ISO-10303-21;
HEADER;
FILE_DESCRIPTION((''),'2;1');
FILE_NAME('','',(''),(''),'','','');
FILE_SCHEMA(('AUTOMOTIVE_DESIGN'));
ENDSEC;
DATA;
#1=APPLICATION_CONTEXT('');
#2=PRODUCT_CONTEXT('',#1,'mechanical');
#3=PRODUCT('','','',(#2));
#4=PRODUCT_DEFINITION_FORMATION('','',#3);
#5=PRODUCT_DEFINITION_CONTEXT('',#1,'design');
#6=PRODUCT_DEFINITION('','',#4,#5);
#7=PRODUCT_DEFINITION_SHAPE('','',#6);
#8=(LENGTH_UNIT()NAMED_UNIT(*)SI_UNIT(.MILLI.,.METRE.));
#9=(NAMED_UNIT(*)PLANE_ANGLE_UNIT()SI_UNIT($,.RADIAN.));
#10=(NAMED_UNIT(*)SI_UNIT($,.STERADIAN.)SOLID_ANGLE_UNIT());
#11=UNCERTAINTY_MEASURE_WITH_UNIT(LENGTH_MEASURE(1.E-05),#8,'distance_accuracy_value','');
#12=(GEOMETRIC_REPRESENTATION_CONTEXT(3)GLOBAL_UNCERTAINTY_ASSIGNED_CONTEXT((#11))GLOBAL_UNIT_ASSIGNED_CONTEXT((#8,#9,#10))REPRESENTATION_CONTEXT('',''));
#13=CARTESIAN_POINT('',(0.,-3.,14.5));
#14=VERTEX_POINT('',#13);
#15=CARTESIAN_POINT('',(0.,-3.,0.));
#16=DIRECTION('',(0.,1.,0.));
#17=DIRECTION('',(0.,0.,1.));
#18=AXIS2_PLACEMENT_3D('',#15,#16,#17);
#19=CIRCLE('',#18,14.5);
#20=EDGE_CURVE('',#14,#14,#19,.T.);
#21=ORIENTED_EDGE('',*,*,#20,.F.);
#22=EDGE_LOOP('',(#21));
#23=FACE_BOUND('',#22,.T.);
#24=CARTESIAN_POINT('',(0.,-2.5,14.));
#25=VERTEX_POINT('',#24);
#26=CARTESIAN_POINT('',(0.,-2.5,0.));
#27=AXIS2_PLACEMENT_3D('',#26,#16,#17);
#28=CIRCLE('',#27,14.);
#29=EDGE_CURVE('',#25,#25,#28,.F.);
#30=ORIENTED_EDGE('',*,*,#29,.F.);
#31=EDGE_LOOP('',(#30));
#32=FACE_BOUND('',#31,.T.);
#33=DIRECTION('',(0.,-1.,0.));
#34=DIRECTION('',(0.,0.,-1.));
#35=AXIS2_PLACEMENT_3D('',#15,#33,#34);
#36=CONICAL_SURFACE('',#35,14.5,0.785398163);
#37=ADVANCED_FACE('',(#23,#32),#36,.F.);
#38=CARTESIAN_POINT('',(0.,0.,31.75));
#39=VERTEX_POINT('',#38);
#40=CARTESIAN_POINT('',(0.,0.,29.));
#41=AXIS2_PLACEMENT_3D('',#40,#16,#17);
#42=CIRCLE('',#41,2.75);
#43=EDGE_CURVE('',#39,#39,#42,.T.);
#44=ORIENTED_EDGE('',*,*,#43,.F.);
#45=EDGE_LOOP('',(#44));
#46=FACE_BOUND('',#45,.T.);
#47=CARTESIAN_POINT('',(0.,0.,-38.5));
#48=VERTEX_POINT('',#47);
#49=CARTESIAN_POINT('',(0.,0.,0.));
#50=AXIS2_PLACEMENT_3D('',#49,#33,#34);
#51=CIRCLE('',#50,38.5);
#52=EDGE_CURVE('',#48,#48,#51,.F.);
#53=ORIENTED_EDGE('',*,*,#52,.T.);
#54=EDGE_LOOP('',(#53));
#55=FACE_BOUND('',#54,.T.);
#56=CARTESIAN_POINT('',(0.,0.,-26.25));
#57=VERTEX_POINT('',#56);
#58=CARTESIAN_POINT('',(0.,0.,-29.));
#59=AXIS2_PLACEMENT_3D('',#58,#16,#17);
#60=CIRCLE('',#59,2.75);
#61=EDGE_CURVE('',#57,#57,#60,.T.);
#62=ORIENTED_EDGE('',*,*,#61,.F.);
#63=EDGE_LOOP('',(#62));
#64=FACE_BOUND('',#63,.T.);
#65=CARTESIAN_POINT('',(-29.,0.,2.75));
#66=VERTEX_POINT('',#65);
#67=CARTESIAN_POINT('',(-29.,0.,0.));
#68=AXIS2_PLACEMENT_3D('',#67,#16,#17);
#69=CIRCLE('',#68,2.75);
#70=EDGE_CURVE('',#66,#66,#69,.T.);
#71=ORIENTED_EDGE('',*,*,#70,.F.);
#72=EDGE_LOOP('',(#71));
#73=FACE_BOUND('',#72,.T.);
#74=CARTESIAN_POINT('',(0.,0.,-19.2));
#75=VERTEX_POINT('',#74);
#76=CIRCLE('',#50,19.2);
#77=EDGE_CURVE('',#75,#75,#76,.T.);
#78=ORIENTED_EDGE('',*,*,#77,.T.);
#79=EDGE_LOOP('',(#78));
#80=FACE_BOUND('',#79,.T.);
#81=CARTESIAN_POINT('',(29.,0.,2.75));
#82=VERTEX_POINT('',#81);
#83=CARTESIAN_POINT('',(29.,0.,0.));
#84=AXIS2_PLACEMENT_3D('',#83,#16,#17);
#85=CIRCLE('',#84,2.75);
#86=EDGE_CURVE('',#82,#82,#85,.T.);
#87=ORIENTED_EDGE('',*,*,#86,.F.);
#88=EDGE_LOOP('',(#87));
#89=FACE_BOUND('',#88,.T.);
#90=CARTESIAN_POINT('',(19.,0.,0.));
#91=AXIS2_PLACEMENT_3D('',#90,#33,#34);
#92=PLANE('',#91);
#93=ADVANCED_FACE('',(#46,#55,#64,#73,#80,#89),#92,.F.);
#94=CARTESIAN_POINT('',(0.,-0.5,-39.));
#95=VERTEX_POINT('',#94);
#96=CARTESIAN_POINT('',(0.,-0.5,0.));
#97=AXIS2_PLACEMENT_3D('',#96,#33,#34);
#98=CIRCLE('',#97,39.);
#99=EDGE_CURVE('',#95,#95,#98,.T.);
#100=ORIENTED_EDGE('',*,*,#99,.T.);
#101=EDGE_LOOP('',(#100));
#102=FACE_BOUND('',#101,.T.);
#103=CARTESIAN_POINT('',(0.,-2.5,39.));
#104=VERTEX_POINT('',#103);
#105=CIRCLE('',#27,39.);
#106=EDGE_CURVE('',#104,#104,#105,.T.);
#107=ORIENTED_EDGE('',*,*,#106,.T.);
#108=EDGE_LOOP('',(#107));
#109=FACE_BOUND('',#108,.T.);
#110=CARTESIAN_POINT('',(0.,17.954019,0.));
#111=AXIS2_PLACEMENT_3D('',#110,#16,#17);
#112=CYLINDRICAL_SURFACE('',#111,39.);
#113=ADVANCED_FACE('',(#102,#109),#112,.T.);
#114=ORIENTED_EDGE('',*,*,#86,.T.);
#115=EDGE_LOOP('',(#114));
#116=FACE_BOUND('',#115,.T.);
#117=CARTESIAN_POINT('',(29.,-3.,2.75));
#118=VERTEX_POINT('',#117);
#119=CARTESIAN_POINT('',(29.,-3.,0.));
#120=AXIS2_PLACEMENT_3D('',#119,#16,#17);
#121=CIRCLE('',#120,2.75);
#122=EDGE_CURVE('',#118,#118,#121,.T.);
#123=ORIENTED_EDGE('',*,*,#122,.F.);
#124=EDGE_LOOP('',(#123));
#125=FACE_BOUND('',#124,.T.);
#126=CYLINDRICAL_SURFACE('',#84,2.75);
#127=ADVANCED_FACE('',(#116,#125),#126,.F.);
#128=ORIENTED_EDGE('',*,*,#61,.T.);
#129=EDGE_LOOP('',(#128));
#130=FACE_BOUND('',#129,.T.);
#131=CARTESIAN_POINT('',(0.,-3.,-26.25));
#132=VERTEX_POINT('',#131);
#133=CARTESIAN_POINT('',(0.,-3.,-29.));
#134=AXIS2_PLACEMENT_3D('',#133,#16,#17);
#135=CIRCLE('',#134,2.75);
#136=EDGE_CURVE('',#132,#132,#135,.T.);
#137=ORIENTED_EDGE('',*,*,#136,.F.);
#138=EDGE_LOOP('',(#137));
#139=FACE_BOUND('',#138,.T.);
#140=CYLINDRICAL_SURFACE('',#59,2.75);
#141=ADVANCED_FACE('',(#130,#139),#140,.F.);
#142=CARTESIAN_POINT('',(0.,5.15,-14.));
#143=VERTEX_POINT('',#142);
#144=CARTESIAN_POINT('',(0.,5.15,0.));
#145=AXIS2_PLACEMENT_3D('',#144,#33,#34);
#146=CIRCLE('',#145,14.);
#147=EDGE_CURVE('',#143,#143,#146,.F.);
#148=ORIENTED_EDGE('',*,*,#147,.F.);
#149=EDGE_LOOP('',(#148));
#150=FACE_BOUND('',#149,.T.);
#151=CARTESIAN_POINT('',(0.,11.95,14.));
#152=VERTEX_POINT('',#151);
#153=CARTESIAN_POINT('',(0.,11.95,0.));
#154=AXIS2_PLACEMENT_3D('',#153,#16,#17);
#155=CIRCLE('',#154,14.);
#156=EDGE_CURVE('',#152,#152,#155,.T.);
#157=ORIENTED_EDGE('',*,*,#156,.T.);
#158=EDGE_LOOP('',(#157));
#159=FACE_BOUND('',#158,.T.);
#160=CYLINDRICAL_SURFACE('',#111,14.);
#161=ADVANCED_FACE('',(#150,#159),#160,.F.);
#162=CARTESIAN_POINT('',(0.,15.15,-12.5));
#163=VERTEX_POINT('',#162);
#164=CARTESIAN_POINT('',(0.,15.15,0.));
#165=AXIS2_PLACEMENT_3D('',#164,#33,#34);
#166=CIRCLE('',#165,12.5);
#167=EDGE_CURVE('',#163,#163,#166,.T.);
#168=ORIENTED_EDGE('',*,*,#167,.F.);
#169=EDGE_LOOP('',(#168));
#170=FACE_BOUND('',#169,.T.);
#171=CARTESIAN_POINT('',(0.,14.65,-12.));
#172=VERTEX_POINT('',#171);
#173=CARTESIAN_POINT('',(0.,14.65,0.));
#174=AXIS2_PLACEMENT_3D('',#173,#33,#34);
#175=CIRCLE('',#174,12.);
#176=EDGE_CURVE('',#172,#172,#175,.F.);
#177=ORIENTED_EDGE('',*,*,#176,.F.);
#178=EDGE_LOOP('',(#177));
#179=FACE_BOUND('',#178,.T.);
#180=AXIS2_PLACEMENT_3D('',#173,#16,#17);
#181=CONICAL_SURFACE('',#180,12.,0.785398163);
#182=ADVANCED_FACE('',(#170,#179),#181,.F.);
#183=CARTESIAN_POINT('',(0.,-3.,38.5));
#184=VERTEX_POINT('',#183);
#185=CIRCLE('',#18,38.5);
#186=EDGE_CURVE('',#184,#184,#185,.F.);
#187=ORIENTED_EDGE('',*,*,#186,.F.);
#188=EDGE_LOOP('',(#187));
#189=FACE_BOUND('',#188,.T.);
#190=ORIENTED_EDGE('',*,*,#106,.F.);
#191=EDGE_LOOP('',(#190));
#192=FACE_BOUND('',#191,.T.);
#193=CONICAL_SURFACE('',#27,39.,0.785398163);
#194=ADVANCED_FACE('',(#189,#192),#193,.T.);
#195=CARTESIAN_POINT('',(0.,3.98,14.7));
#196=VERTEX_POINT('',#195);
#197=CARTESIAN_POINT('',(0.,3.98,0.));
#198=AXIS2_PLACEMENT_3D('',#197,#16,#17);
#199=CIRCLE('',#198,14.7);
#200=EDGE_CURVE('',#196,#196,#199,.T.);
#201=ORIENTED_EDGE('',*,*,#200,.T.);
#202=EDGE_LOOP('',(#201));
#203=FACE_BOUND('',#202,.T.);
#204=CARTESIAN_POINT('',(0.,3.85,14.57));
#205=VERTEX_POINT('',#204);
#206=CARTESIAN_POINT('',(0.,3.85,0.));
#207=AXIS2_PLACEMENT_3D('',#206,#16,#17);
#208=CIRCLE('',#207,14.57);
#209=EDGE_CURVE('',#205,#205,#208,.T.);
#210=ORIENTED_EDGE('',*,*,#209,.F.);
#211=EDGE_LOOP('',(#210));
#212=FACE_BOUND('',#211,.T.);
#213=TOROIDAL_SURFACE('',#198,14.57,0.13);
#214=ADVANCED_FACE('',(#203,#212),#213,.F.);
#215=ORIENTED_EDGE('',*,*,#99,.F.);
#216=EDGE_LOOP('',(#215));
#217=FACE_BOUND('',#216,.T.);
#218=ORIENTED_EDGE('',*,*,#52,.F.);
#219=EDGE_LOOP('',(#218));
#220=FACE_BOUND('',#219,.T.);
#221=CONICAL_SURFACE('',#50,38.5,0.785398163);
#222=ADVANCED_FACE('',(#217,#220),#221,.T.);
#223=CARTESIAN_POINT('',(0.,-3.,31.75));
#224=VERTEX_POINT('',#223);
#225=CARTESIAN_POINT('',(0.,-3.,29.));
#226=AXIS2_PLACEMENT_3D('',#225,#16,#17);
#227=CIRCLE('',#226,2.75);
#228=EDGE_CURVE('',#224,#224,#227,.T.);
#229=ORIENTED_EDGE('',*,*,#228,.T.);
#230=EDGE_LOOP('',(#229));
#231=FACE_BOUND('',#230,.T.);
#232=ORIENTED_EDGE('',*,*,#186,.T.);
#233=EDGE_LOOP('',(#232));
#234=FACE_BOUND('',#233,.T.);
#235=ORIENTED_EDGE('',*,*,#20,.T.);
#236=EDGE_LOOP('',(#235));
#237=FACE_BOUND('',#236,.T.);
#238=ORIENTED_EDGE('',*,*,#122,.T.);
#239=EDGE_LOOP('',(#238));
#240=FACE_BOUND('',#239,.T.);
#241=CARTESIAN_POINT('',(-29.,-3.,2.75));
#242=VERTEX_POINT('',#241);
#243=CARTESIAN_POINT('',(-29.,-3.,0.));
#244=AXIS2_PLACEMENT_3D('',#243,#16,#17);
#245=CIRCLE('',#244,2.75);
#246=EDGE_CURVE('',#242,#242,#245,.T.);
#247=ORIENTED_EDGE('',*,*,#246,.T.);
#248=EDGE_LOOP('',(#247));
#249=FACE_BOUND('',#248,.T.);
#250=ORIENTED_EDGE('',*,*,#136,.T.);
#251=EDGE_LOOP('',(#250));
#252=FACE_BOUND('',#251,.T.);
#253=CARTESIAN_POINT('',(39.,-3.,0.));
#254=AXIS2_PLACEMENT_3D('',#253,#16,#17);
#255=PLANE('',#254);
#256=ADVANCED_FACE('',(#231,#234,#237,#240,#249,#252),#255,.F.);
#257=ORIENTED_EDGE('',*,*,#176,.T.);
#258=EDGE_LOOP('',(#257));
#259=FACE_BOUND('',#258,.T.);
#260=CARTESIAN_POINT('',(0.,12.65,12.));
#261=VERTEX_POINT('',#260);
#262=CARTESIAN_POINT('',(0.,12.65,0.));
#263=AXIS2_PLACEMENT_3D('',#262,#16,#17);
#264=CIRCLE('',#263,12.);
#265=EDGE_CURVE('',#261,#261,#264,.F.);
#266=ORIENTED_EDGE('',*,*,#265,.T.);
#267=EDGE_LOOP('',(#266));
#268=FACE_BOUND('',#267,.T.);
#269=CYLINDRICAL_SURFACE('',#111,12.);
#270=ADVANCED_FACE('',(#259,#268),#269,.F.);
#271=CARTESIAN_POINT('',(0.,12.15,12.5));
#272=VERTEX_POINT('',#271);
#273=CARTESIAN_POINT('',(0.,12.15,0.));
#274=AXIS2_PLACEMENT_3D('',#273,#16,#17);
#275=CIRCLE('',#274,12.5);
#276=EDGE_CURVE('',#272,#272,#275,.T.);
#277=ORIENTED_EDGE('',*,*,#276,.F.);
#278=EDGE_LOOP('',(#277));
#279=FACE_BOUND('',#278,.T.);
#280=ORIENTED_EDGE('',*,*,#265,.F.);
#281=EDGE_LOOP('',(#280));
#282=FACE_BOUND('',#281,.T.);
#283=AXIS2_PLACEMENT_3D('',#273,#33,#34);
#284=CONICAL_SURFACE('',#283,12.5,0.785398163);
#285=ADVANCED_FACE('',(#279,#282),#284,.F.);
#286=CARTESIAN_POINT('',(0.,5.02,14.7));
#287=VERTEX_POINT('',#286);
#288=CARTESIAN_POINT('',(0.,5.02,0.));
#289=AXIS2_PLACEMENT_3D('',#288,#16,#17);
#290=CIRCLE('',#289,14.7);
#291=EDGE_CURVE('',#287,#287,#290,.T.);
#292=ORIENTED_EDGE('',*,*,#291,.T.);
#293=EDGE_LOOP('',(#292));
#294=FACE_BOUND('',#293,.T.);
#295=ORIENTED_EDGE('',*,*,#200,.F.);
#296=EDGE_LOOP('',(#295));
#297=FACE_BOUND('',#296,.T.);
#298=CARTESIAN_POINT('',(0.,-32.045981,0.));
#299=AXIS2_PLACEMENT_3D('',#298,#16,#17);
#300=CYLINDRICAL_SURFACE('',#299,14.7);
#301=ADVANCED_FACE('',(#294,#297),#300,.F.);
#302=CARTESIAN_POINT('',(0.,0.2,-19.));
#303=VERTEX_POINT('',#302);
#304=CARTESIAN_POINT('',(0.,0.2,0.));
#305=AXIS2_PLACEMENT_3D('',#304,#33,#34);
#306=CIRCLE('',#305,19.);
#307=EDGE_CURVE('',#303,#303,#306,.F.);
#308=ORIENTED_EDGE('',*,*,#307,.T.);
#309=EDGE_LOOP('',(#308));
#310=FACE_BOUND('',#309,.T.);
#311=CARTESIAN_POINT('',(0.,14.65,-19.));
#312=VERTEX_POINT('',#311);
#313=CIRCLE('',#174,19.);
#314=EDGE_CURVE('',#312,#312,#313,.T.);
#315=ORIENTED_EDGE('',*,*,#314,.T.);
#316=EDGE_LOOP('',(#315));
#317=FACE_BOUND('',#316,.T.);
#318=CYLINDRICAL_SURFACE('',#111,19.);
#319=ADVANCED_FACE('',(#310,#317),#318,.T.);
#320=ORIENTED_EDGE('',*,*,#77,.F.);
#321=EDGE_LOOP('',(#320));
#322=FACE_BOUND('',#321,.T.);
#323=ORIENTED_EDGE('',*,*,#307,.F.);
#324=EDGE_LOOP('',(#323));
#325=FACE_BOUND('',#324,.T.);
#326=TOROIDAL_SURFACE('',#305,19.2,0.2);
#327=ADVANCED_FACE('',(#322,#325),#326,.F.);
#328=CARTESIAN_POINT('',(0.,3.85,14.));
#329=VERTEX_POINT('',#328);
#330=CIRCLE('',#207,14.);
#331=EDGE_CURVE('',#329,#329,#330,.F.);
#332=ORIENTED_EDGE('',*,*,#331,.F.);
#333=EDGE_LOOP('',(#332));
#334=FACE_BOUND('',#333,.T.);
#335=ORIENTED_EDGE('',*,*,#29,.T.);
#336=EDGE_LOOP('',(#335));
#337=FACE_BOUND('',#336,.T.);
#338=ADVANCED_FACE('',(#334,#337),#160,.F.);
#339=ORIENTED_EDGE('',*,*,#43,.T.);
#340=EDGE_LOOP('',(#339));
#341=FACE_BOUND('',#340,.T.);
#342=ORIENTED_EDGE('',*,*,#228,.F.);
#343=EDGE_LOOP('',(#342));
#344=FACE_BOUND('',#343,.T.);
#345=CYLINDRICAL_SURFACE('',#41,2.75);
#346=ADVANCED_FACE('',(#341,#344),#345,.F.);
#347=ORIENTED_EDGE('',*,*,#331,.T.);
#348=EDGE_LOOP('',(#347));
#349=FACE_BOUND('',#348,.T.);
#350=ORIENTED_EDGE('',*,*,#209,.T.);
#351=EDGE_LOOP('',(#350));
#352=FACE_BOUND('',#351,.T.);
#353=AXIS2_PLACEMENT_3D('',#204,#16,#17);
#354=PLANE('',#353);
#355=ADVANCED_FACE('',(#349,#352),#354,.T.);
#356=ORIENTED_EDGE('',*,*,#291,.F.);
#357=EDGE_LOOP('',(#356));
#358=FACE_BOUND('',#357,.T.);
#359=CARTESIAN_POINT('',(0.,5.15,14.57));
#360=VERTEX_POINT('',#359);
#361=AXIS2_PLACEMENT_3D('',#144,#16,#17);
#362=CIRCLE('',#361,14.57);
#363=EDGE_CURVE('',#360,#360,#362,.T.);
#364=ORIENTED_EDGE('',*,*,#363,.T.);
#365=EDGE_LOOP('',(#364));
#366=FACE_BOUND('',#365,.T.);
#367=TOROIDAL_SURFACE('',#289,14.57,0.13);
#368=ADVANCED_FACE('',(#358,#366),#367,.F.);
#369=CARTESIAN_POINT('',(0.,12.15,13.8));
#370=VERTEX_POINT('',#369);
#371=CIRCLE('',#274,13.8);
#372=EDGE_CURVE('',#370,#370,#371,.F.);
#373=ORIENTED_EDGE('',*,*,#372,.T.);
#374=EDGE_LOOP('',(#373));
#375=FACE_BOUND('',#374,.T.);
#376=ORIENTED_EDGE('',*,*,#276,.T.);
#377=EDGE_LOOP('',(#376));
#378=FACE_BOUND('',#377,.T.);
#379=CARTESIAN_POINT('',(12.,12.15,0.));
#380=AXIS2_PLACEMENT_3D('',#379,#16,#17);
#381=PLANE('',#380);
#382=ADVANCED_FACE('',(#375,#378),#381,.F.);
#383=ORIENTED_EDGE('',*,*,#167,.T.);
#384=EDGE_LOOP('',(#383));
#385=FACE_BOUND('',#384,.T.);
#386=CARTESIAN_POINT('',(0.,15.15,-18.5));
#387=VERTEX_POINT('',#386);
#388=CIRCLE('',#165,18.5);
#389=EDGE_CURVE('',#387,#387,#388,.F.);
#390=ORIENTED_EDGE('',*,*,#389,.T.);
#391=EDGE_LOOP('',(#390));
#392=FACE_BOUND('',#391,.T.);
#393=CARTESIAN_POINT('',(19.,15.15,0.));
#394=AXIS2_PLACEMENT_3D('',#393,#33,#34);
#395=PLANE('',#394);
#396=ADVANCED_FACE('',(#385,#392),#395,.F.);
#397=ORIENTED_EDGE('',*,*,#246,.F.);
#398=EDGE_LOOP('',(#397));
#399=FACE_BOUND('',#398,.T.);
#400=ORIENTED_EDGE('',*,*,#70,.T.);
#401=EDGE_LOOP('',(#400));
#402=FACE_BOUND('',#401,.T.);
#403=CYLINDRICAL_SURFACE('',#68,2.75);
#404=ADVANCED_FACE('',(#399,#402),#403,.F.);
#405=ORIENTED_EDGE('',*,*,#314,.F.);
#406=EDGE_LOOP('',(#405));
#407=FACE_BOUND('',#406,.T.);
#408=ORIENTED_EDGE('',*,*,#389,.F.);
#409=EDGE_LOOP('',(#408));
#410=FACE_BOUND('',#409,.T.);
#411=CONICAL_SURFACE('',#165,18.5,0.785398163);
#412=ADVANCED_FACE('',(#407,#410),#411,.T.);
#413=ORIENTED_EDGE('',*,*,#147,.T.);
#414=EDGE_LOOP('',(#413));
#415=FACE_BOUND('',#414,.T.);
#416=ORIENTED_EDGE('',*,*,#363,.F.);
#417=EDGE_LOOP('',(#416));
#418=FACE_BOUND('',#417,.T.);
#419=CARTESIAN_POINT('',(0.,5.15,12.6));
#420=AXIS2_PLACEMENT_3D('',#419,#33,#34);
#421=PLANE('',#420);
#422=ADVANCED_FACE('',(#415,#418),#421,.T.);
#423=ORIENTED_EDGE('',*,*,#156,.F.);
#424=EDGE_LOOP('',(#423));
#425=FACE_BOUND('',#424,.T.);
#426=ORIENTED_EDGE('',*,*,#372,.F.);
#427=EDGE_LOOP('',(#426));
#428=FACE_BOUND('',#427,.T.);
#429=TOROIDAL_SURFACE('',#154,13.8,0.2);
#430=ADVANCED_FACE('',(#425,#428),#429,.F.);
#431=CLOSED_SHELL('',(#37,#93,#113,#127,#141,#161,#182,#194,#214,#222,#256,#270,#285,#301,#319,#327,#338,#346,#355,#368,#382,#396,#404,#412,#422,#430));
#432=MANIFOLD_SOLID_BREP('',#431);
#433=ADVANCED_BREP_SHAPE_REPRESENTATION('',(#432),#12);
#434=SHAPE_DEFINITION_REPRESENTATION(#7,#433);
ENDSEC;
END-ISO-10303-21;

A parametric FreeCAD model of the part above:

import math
import FreeCAD as App
import Part
import Sketcher
from FreeCAD import Vector


def edges_at(feature, points):
    """Names of the edges that pass closest to the given points."""
    edges = feature.Shape.Edges
    near = lambda p: min(range(len(edges)), key=lambda i: edges[i].distToShape(Part.Vertex(*p))[0])
    return sorted({f"Edge{near(p) + 1}" for p in points})


def add_polygon(sketch, points):
    """Adds a closed chain of lines whose ends are joined by coincident constraints."""
    first, n = sketch.GeometryCount, len(points)
    for a, b in zip(points, points[1:] + points[:1]):
        sketch.addGeometry(Part.LineSegment(App.Vector(*a, 0), App.Vector(*b, 0)), False)
    for i in range(n):
        sketch.addConstraint(Sketcher.Constraint("Coincident", first + i, 2, first + (i + 1) % n, 1))

doc = App.newDocument("Part")
params = doc.addObject("Spreadsheet::Sheet", "Params")
for row, (alias, value) in enumerate([
    ("sketch1_width", "25 mm"),
    ("sketch1_width2", "20 mm"),
    ("sketch1_width3", "7 mm"),
    ("sketch1_height", "3 mm"),
    ("sketch1_height2", "15.15 mm"),
    ("revolution_angle", "360 deg"),
    ("sketch2_diameter", "5.5 mm"),
    ("hole_diameter", "5.5 mm"),
    ("fillet_radius", "0.2 mm"),
    ("chamfer_size", "0.5 mm"),
    ("sketch3_radius", "0.13 mm"),
    ("sketch3_width", "1.3 mm"),
    ("sketch3_height", "1.97 mm"),
    ("groove_angle", "360 deg"),
], start=1):
    params.set(f"A{row}", alias)
    params.set(f"B{row}", "=" + value)
    params.setAlias(f"B{row}", alias)

body = doc.addObject("PartDesign::Body", "Body")

# Sketch on XY plane
sketch1 = body.newObject("Sketcher::SketchObject", "Sketch")
sketch1.AttachmentSupport = (doc.getObject("XY_Plane"), [""])
sketch1.MapMode = "FlatFace"
add_polygon(sketch1, [(14, 12.2), (14, -3), (39, -3), (39, 0), (19, 0), (19, 15.2), (12, 15.2), (12, 12.2)])  # lines 0-7
sketch1.addConstraint([
    Sketcher.Constraint("Vertical", 0),
    Sketcher.Constraint("Horizontal", 1),
    Sketcher.Constraint("Vertical", 2),
    Sketcher.Constraint("Horizontal", 3),
    Sketcher.Constraint("Vertical", 4),
    Sketcher.Constraint("Horizontal", 5),
    Sketcher.Constraint("Vertical", 6),
    Sketcher.Constraint("Horizontal", 7),
    Sketcher.Constraint("PointOnObject", 2, 2, -1),
    Sketcher.Constraint("Equal", 0, 4),
    Sketcher.Constraint("DistanceX", 1, 1, 1, 2, 25.0),
    Sketcher.Constraint("DistanceX", 3, 2, 3, 1, 20.0),
    Sketcher.Constraint("DistanceX", 5, 2, 5, 1, 7.0),
    Sketcher.Constraint("DistanceY", 2, 1, 2, 2, 3.0),
    Sketcher.Constraint("DistanceX", -1, 1, 0, 2, 14.0),
    Sketcher.Constraint("DistanceY", 0, 2, 0, 1, 15.15),
])
sketch1.setExpression("Constraints[18]", "Params.sketch1_width")
sketch1.setExpression("Constraints[19]", "Params.sketch1_width2")
sketch1.setExpression("Constraints[20]", "Params.sketch1_width3")
sketch1.setExpression("Constraints[21]", "Params.sketch1_height")
sketch1.setExpression("Constraints[23]", "Params.sketch1_height2")
revolution = body.newObject("PartDesign::Revolution", "Revolution")
revolution.Profile = sketch1
revolution.ReferenceAxis = (sketch1, ["V_Axis"])
revolution.setExpression("Angle", "Params.revolution_angle")

# Sketch on XZ plane
sketch2 = body.newObject("Sketcher::SketchObject", "Sketch001")
sketch2.AttachmentSupport = (doc.getObject("XZ_Plane"), [""])
sketch2.MapMode = "FlatFace"
sketch2.addGeometry([
    Part.Circle(Vector(0, -29, 0), Vector(0, 0, 1), 2.8),
    Part.Circle(Vector(29, 0, 0), Vector(0, 0, 1), 2.8),
    Part.Circle(Vector(0, 29, 0), Vector(0, 0, 1), 2.8),
    Part.Circle(Vector(-29, 0, 0), Vector(0, 0, 1), 2.8),
], False)
sketch2.addConstraint([
    Sketcher.Constraint("Equal", 0, 1),
    Sketcher.Constraint("Equal", 1, 2),
    Sketcher.Constraint("Equal", 2, 3),
    Sketcher.Constraint("Symmetric", 0, 3, 2, 3, -1, 1),
    Sketcher.Constraint("Symmetric", 1, 3, 3, 3, -1, 1),
    Sketcher.Constraint("PointOnObject", 0, 3, -2),
    Sketcher.Constraint("PointOnObject", 1, 3, -1),
    Sketcher.Constraint("Diameter", 0, 5.5),
    Sketcher.Constraint("DistanceY", 0, 3, -1, 1, 29.0),
    Sketcher.Constraint("DistanceX", -1, 1, 1, 3, 29.0),
])
sketch2.setExpression("Constraints[7]", "Params.sketch2_diameter")
doc.recompute()
hole = body.newObject("PartDesign::Hole", "Hole")
hole.Profile = sketch2
hole.ThreadType = "None"
hole.setExpression("Diameter", "Params.hole_diameter")
hole.DepthType = "ThroughAll"
hole.Reversed = True
doc.recompute()

fillet = body.newObject("PartDesign::Fillet", "Fillet")
fillet.Base = (hole, edges_at(hole, [(0, 0, -19), (0, 12.15, -14)]))
fillet.setExpression("Radius", "Params.fillet_radius")
doc.recompute()

chamfer = body.newObject("PartDesign::Chamfer", "Chamfer")
chamfer.Base = (fillet, edges_at(fillet, [
    (0, 12.15, -12),
    (0, 15.15, -12),
    (0, 15.15, -19),
    (0, 0, -39),
    (0, -3, -39),
    (0, -3, -14),
]))
chamfer.setExpression("Size", "Params.chamfer_size")

# Sketch on YZ plane
sketch3 = body.newObject("Sketcher::SketchObject", "Sketch002")
sketch3.AttachmentSupport = (doc.getObject("YZ_Plane"), [""])
sketch3.MapMode = "FlatFace"
sketch3.addGeometry([
    Part.LineSegment(Vector(3.85, 12.6, 0), Vector(3.85, 14.57, 0)),  # 0
    Part.ArcOfCircle(Part.Circle(Vector(3.98, 14.57, 0), Vector(0, 0, 1), 0.13), math.radians(90), math.radians(180)),  # 1
    Part.LineSegment(Vector(3.98, 14.7, 0), Vector(5.02, 14.7, 0)),  # 2
    Part.ArcOfCircle(Part.Circle(Vector(5.02, 14.57, 0), Vector(0, 0, 1), 0.13), math.radians(0), math.radians(90)),  # 3
    Part.LineSegment(Vector(5.15, 14.57, 0), Vector(5.15, 12.6, 0)),  # 4
    Part.LineSegment(Vector(5.15, 12.6, 0), Vector(3.85, 12.6, 0)),  # 5
], False)
sketch3.addConstraint([
    Sketcher.Constraint("Tangent", 0, 2, 1, 2),
    Sketcher.Constraint("Tangent", 1, 1, 2, 1),
    Sketcher.Constraint("Tangent", 2, 2, 3, 2),
    Sketcher.Constraint("Tangent", 3, 1, 4, 1),
    Sketcher.Constraint("Coincident", 4, 2, 5, 1),
    Sketcher.Constraint("Coincident", 5, 2, 0, 1),
    Sketcher.Constraint("Vertical", 0),
    Sketcher.Constraint("Horizontal", 2),
    Sketcher.Constraint("Vertical", 4),
    Sketcher.Constraint("Horizontal", 5),
    Sketcher.Constraint("Equal", 1, 3),
    Sketcher.Constraint("Radius", 1, 0.13),
    Sketcher.Constraint("DistanceX", 5, 2, 5, 1, 1.3),
    Sketcher.Constraint("DistanceY", 0, 1, 0, 2, 1.97),
    Sketcher.Constraint("DistanceY", -1, 1, 1, 1, 14.7),
    Sketcher.Constraint("DistanceX", -1, 1, 1, 3, 3.98),
])
sketch3.setExpression("Constraints[11]", "Params.sketch3_radius")
sketch3.setExpression("Constraints[12]", "Params.sketch3_width")
sketch3.setExpression("Constraints[13]", "Params.sketch3_height")
groove = body.newObject("PartDesign::Groove", "Groove")
groove.Profile = sketch3
groove.ReferenceAxis = (sketch3, ["H_Axis"])
groove.setExpression("Angle", "Params.groove_angle")

doc.recompute()
